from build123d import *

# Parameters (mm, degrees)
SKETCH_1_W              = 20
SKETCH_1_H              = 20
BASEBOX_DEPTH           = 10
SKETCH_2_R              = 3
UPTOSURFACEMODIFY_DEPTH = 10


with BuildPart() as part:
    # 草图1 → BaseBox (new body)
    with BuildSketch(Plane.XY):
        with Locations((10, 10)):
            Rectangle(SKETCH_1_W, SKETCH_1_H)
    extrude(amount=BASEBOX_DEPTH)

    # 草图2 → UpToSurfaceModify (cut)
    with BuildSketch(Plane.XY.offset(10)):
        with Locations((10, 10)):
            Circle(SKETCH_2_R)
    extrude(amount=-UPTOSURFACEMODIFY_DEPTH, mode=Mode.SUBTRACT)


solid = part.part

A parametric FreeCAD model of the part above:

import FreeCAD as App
import Part
import Sketcher
from FreeCAD import Vector


def add_polygon(sketch, points):
    """Adds a closed chain of lines whose ends are joined by coincident constraints."""
    first, n = sketch.GeometryCount, len(points)
    for a, b in zip(points, points[1:] + points[:1]):
        sketch.addGeometry(Part.LineSegment(App.Vector(*a, 0), App.Vector(*b, 0)), False)
    for i in range(n):
        sketch.addConstraint(Sketcher.Constraint("Coincident", first + i, 2, first + (i + 1) % n, 1))

doc = App.newDocument("Part")
body = doc.addObject("PartDesign::Body", "Body")

# Sketch on XY plane
sketch1 = body.newObject("Sketcher::SketchObject", "Sketch")
sketch1.AttachmentSupport = (doc.getObject("XY_Plane"), [""])
sketch1.MapMode = "FlatFace"
add_polygon(sketch1, [(0, 20), (0, 0), (20, 0), (20, 20)])  # lines 0-3
sketch1.addConstraint([
    Sketcher.Constraint("Vertical", 0),
    Sketcher.Constraint("Horizontal", 1),
    Sketcher.Constraint("Vertical", 2),
    Sketcher.Constraint("Horizontal", 3),
    Sketcher.Constraint("Coincident", 0, 2, -1, 1),
    Sketcher.Constraint("Equal", 3, 0),
    Sketcher.Constraint("DistanceX", 1, 1, 1, 2, 20.0),
])
pad1 = body.newObject("PartDesign::Pad", "Pad")
pad1.Profile = sketch1
pad1.Length = 10

# Sketch on XY plane
sketch2 = body.newObject("Sketcher::SketchObject", "Sketch001")
sketch2.AttachmentSupport = (doc.getObject("XY_Plane"), [""])
sketch2.MapMode = "FlatFace"
sketch2.AttachmentOffset = App.Placement(Vector(0, 0, 10), App.Rotation())
sketch2.addGeometry(Part.Circle(Vector(10, 10, 0), Vector(0, 0, 1), 3), False)
sketch2.addConstraint([
    Sketcher.Constraint("Diameter", 0, 6.0),
    Sketcher.Constraint("DistanceX", -1, 1, 0, 3, 10.0),
    Sketcher.Constraint("DistanceY", -1, 1, 0, 3, 10.0),
])
pocket1 = body.newObject("PartDesign::Pocket", "Pocket")
pocket1.Profile = sketch2
pocket1.Length = 10

doc.recompute()
